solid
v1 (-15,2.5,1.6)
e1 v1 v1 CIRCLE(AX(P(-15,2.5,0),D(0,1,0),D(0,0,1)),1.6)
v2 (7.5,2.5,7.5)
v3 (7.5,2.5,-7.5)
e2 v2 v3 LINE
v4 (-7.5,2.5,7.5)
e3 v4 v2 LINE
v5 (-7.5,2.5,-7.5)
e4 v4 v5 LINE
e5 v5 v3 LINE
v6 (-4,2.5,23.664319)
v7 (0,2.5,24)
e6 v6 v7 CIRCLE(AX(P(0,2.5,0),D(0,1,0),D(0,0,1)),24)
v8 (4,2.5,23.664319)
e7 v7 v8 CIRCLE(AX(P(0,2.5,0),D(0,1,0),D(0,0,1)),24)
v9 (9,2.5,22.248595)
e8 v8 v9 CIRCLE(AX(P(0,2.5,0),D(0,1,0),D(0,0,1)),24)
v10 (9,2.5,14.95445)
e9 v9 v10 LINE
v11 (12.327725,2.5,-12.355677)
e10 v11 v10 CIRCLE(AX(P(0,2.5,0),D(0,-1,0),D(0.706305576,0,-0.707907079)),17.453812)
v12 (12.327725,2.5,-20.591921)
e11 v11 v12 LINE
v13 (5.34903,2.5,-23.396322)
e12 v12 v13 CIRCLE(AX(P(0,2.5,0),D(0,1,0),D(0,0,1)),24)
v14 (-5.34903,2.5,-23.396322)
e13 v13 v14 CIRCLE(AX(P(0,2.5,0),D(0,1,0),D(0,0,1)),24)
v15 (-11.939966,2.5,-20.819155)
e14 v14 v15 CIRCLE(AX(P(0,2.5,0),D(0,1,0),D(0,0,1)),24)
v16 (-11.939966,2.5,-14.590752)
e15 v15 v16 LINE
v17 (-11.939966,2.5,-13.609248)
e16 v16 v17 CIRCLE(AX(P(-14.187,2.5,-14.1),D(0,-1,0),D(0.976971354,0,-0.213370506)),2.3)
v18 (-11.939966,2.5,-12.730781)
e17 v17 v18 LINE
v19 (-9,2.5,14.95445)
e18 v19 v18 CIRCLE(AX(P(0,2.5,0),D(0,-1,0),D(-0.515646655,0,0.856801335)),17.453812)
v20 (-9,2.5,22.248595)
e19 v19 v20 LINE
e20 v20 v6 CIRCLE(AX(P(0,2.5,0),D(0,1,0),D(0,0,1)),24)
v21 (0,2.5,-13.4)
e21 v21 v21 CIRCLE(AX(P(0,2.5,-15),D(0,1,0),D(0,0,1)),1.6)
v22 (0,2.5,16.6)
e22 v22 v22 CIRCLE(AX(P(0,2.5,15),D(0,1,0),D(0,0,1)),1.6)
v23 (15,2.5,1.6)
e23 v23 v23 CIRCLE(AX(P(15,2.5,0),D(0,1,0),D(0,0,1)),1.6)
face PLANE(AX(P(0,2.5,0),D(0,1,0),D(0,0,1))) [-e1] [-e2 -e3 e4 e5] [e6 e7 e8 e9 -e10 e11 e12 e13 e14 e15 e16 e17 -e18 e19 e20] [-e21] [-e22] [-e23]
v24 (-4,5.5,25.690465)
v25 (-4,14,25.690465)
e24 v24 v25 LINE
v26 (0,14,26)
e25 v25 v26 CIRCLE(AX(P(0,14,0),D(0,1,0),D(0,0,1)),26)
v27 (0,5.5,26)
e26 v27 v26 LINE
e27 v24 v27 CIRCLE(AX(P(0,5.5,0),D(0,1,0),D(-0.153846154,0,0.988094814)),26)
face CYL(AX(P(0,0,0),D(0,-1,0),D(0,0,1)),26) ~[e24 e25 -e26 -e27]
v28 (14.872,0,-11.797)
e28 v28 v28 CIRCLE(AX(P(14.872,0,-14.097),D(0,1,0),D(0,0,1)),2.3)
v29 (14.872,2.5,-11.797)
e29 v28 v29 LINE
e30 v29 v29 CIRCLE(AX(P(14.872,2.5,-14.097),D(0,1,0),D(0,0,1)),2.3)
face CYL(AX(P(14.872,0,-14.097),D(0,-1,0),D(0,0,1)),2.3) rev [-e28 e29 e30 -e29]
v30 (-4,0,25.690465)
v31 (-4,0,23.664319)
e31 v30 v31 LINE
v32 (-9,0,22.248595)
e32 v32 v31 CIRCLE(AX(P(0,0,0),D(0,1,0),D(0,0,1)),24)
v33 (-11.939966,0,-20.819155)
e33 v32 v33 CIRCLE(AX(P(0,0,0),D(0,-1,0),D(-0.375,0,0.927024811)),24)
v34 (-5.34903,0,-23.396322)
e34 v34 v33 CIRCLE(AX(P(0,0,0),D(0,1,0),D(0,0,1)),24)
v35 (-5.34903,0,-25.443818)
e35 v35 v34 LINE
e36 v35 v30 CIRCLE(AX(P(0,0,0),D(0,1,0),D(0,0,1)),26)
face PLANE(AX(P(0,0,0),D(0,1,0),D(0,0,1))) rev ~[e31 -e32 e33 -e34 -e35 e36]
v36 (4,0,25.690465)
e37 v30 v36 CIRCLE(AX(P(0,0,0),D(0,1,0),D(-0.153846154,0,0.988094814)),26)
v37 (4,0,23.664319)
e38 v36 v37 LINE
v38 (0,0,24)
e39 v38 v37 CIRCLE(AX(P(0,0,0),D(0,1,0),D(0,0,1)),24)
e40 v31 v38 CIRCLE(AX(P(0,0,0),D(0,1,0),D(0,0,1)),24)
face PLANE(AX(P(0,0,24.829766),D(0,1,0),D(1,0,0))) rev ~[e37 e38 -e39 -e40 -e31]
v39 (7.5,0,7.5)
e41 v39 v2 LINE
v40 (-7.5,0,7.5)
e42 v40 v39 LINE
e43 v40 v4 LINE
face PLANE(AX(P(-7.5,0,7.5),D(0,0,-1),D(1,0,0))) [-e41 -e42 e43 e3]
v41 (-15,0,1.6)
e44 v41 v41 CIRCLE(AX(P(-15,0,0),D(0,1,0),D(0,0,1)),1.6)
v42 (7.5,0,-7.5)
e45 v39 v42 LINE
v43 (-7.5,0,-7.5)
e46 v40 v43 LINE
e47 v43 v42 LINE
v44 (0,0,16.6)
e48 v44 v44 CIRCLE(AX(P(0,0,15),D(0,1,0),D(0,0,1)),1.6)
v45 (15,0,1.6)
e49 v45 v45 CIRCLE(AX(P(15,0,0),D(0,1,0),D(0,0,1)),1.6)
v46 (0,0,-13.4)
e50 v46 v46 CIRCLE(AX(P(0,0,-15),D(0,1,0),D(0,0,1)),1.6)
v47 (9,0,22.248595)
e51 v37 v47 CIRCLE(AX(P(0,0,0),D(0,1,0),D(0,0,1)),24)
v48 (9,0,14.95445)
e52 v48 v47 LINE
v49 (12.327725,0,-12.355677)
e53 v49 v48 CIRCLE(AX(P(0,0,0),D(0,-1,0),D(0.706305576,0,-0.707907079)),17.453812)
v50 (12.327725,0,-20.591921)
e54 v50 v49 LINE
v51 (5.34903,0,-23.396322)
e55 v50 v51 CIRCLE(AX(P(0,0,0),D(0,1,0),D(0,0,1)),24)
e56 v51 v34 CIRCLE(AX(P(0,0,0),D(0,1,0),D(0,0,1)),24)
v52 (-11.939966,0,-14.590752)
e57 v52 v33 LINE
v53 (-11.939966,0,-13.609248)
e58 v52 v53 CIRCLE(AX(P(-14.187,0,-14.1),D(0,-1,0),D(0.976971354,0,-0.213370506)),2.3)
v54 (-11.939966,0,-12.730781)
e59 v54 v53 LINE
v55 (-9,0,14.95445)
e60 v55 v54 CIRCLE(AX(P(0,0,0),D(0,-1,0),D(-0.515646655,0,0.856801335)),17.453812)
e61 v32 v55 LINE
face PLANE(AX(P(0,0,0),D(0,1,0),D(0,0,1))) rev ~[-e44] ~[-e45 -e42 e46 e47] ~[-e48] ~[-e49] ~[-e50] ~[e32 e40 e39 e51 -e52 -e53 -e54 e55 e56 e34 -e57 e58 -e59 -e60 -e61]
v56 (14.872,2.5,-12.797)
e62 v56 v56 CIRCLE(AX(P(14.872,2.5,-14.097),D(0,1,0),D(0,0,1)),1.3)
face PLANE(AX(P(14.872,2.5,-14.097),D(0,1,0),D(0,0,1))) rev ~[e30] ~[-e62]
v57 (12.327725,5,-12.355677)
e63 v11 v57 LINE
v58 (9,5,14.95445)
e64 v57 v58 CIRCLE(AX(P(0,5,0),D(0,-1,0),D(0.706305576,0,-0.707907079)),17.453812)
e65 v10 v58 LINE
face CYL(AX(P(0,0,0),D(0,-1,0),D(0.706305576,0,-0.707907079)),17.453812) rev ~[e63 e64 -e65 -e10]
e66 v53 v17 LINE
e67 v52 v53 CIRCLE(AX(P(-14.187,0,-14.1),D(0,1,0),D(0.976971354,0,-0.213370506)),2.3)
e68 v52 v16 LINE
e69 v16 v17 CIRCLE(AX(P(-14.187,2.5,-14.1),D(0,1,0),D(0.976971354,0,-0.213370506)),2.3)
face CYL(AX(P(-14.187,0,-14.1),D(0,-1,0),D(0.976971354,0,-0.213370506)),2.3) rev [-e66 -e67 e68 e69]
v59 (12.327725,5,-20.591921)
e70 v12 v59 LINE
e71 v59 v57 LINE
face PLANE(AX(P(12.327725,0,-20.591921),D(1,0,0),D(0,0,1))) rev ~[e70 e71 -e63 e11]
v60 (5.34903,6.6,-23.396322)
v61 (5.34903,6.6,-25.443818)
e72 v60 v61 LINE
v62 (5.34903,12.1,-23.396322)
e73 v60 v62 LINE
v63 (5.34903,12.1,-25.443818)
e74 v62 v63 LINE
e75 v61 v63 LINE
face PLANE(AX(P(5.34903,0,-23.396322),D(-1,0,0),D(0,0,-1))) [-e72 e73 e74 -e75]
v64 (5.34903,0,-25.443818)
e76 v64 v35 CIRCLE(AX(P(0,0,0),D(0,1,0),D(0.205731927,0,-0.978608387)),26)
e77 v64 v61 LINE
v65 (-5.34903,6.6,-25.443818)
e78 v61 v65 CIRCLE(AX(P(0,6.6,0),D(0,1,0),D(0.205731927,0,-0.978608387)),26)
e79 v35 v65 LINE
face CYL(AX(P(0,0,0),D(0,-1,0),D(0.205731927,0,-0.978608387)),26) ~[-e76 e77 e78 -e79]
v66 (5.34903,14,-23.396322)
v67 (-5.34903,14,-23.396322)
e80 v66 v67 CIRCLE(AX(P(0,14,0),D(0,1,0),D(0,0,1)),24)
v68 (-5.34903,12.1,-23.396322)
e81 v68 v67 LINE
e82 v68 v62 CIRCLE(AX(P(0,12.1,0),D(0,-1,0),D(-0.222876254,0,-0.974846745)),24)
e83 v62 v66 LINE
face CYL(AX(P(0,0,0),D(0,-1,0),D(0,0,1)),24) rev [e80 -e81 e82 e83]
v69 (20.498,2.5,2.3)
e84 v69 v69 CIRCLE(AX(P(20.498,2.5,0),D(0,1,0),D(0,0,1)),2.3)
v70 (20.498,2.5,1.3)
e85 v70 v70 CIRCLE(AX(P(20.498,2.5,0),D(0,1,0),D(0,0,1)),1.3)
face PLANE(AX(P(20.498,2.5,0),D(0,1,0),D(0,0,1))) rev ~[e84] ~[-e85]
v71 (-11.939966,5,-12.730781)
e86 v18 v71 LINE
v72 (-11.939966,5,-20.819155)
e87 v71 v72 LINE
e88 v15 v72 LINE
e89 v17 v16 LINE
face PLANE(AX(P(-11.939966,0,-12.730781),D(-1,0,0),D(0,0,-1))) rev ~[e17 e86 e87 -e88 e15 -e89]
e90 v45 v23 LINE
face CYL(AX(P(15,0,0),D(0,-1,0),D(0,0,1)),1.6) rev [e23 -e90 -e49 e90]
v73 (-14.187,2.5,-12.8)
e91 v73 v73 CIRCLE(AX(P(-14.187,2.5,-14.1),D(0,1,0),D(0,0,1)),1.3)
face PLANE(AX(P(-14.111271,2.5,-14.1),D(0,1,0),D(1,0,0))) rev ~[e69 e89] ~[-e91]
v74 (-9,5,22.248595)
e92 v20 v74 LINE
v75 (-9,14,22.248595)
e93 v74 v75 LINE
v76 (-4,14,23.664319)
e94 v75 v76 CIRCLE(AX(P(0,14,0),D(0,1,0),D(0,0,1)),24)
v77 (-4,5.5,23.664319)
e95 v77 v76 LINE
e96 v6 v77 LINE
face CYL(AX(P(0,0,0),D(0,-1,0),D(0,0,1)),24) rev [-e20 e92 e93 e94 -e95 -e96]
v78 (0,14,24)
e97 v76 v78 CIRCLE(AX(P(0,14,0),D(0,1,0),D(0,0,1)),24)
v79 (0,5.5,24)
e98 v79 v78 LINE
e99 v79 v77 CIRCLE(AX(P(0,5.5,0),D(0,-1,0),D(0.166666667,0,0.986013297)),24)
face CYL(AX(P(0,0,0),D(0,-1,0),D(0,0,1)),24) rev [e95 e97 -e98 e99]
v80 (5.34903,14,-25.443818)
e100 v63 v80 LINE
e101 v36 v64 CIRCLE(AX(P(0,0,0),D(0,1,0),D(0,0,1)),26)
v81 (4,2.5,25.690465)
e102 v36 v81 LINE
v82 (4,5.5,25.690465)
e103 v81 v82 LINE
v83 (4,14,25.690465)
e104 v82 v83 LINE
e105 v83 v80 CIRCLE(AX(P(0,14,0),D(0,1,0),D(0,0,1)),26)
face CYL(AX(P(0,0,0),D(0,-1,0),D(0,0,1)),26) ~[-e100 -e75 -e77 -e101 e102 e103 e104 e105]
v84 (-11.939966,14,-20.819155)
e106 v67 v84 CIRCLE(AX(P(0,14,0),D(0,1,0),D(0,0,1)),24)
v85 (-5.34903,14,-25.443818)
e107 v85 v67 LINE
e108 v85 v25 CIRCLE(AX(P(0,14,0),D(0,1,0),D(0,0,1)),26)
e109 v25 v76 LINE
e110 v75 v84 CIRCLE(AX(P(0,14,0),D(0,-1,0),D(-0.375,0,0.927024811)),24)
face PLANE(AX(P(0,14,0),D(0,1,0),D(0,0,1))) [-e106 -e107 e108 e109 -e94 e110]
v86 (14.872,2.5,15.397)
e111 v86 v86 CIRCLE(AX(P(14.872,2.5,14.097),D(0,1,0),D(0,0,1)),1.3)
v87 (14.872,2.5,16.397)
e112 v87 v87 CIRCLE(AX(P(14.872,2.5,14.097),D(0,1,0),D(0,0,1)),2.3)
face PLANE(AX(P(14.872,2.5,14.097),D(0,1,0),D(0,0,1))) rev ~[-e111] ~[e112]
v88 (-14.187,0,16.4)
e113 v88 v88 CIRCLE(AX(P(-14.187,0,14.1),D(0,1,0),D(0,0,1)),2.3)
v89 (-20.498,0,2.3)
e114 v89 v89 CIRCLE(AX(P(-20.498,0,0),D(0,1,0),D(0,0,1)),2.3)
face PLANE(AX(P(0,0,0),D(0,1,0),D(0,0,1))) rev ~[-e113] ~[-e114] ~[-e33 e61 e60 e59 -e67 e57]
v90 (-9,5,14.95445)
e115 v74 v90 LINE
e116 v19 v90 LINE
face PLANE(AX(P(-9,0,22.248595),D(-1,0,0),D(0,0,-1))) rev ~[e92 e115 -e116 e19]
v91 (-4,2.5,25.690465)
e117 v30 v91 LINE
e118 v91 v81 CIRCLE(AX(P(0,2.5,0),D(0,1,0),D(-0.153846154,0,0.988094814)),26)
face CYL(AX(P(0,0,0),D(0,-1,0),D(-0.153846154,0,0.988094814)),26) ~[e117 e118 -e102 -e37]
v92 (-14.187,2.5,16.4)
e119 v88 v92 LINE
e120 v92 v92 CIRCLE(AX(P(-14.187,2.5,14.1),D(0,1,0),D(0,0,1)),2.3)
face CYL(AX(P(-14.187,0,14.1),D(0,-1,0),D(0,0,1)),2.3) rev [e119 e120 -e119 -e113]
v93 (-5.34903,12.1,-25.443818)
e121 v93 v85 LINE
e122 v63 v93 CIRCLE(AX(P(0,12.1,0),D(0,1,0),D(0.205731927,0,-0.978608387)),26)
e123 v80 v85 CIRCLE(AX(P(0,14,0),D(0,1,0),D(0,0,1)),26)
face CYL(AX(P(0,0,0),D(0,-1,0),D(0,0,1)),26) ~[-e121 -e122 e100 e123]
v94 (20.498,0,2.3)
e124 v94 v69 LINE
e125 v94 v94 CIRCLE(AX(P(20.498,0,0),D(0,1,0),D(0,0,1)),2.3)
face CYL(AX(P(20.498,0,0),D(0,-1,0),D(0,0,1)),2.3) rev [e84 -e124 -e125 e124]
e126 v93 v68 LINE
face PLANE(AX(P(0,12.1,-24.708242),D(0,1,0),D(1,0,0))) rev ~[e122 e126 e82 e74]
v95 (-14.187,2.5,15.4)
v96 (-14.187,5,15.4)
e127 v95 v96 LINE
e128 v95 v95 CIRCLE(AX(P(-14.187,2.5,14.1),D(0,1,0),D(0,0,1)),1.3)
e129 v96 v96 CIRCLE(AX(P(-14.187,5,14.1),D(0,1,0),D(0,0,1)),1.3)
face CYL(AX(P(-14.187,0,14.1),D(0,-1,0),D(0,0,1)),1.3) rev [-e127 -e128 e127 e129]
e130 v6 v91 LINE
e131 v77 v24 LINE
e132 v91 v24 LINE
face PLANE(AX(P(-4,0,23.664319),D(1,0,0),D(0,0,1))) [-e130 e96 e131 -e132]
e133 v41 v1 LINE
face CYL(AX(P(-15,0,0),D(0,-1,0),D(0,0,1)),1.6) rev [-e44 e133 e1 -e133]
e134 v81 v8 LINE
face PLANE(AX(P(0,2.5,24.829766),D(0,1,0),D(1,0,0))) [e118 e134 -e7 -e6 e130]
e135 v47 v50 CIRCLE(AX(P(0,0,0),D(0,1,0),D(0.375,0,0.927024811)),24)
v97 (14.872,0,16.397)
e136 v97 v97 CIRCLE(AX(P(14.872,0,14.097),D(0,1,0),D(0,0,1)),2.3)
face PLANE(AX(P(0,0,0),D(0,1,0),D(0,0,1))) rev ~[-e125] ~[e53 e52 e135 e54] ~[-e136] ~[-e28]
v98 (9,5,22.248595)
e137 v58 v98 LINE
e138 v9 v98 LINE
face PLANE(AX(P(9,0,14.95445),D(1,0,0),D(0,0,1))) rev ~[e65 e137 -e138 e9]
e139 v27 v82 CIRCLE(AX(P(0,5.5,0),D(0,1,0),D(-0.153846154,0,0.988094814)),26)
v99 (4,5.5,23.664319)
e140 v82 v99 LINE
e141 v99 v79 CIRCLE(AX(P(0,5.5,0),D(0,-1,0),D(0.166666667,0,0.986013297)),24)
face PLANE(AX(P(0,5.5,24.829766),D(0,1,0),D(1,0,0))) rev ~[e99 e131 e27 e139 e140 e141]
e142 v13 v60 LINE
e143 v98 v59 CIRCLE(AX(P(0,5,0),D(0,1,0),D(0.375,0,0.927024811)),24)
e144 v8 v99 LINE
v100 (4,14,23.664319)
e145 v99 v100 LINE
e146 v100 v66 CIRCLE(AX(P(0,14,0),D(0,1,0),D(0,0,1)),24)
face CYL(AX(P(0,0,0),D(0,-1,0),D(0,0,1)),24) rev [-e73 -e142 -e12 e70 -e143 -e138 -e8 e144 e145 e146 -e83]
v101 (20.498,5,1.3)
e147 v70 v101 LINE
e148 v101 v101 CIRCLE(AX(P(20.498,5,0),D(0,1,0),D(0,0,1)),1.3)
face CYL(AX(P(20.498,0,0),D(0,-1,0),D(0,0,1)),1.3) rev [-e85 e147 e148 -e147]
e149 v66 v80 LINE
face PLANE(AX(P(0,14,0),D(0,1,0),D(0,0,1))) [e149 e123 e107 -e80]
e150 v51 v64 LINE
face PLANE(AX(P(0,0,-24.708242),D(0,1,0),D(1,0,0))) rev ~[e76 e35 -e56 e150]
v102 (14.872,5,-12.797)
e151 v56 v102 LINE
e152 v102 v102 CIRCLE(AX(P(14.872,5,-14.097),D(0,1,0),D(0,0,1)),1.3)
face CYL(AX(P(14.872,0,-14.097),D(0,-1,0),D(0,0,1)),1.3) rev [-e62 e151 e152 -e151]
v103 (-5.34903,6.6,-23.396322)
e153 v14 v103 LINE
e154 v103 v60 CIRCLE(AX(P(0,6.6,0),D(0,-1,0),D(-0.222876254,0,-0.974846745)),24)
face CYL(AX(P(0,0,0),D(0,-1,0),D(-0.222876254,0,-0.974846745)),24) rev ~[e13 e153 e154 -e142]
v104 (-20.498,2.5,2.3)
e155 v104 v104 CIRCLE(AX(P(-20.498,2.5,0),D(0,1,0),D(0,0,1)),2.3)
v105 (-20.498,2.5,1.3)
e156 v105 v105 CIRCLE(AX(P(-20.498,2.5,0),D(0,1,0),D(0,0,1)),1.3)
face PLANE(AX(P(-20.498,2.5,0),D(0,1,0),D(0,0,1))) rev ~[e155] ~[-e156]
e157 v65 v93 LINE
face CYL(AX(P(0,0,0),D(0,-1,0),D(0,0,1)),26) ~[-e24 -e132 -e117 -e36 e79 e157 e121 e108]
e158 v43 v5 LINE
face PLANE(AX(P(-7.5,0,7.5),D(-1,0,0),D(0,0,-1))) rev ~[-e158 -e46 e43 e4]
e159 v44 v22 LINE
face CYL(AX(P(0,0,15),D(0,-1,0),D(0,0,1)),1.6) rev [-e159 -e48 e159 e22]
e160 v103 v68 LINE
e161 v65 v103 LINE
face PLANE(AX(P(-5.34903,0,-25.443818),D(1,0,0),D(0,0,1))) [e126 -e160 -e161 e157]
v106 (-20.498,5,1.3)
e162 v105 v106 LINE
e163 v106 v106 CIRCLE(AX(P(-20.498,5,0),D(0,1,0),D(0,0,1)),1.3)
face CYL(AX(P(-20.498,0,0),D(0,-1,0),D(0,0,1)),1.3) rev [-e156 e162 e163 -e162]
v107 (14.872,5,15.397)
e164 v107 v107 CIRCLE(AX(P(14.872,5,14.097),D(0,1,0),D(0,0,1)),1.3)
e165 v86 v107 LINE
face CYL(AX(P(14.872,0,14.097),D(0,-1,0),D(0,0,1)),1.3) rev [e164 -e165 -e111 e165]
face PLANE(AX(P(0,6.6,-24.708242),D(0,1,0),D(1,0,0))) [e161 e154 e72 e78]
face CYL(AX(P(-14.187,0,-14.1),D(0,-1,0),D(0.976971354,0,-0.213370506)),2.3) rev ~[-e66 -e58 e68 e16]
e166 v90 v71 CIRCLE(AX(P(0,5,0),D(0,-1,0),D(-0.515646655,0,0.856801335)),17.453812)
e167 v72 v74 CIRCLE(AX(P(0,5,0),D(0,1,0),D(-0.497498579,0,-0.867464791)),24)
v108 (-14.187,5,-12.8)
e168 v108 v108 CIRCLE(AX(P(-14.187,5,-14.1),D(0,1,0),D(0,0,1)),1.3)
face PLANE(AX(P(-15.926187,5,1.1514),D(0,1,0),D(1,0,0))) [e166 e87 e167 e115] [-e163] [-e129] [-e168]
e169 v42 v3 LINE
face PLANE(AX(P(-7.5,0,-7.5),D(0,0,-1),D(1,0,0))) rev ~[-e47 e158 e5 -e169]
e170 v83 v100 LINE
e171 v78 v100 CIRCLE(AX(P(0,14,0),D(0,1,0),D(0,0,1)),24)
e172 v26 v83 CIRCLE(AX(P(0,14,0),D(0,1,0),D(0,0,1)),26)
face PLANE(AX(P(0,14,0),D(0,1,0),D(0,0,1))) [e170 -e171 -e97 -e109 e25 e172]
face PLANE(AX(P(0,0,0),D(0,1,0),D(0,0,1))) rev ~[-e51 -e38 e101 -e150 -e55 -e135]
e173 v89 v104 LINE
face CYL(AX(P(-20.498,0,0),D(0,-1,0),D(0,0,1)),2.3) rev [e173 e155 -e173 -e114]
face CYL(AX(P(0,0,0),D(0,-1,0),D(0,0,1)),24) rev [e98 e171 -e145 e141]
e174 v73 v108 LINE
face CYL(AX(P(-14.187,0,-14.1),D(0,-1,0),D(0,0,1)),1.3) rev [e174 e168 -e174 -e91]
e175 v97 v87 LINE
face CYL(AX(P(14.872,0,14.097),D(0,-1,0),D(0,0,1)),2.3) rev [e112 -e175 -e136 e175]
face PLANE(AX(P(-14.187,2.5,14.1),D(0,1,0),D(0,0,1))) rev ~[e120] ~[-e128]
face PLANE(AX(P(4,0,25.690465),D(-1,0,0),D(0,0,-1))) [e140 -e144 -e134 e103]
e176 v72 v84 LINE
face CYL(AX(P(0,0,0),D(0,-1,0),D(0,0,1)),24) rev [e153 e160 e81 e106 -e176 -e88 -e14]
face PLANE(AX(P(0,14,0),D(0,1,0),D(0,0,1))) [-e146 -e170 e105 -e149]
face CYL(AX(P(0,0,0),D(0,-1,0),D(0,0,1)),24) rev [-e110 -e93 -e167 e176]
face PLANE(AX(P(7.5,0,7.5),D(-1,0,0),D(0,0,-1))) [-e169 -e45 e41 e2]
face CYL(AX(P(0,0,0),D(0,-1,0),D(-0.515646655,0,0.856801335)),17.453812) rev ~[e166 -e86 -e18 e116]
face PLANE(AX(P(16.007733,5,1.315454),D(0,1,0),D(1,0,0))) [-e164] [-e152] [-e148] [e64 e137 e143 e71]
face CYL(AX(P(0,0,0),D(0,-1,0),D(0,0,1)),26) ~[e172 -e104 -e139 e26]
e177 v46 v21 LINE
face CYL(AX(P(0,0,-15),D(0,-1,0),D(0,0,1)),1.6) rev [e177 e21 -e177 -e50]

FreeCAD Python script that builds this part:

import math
import FreeCAD as App
import Part
import Sketcher
Q = App.Units.Quantity

doc = App.newDocument("Part")
body = doc.addObject("PartDesign::Body", "Body")

# Sketch on XZ plane
sketch1 = body.newObject("Sketcher::SketchObject", "Sketch")
sketch1.AttachmentSupport = (doc.getObject("XZ_Plane"), [""])
sketch1.MapMode = "FlatFace"
sketch1.addGeometry(Part.Circle(App.Vector(0, 0, 0), App.Vector(0, 0, 1), 24), False)
sketch1.addGeometry(Part.Circle(App.Vector(-14.2, -14.1, 0), App.Vector(0, 0, 1), 1.3), False)
sketch1.addGeometry(Part.LineSegment(App.Vector(-11.9, -13.6, 0), App.Vector(-11.9, -14.6, 0)), False)
sketch1.addGeometry(Part.ArcOfCircle(Part.Circle(App.Vector(-14.2, -14.1, 0), App.Vector(0, 0, 1), 2.3), math.radians(-12), math.radians(12)), False)
sketch1.addGeometry(Part.Circle(App.Vector(0, -15, 0), App.Vector(0, 0, 1), 1.6), False)
sketch1.addGeometry(Part.Circle(App.Vector(-20.5, 0, 0), App.Vector(0, 0, 1), 1.3), False)
sketch1.addGeometry(Part.Circle(App.Vector(-15, 0, 0), App.Vector(0, 0, 1), 1.6), False)
sketch1.addGeometry(Part.Circle(App.Vector(-14.2, 14.1, 0), App.Vector(0, 0, 1), 1.3), False)
sketch1.addGeometry(Part.LineSegment(App.Vector(7.5, 7.5, 0), App.Vector(-7.5, 7.5, 0)), False)
sketch1.addGeometry(Part.LineSegment(App.Vector(-7.5, 7.5, 0), App.Vector(-7.5, -7.5, 0)), False)
sketch1.addGeometry(Part.LineSegment(App.Vector(-7.5, -7.5, 0), App.Vector(7.5, -7.5, 0)), False)
sketch1.addGeometry(Part.LineSegment(App.Vector(7.5, -7.5, 0), App.Vector(7.5, 7.5, 0)), False)
sketch1.addGeometry(Part.Circle(App.Vector(14.9, -14.1, 0), App.Vector(0, 0, 1), 1.3), False)
sketch1.addGeometry(Part.Circle(App.Vector(15, 0, 0), App.Vector(0, 0, 1), 1.6), False)
sketch1.addGeometry(Part.Circle(App.Vector(20.5, 0, 0), App.Vector(0, 0, 1), 1.3), False)
sketch1.addGeometry(Part.Circle(App.Vector(0, 15, 0), App.Vector(0, 0, 1), 1.6), False)
sketch1.addGeometry(Part.Circle(App.Vector(14.9, 14.1, 0), App.Vector(0, 0, 1), 1.3), False)
sketch1.addConstraint(Sketcher.Constraint("Coincident", 2, 1, 3, 2))
sketch1.addConstraint(Sketcher.Constraint("Coincident", 3, 1, 2, 2))
sketch1.addConstraint(Sketcher.Constraint("Coincident", 8, 2, 9, 1))
sketch1.addConstraint(Sketcher.Constraint("Coincident", 9, 2, 10, 1))
sketch1.addConstraint(Sketcher.Constraint("Coincident", 10, 2, 11, 1))
sketch1.addConstraint(Sketcher.Constraint("Coincident", 11, 2, 8, 1))
sketch1.addConstraint(Sketcher.Constraint("Vertical", 2))
sketch1.addConstraint(Sketcher.Constraint("Horizontal", 8))
sketch1.addConstraint(Sketcher.Constraint("Vertical", 9))
sketch1.addConstraint(Sketcher.Constraint("Horizontal", 10))
sketch1.addConstraint(Sketcher.Constraint("Vertical", 11))
sketch1.addConstraint(Sketcher.Constraint("Coincident", 0, 3, -1, 1))
sketch1.addConstraint(Sketcher.Constraint("Coincident", 3, 3, 1, 3))
sketch1.addConstraint(Sketcher.Constraint("Equal", 1, 5))
sketch1.addConstraint(Sketcher.Constraint("Equal", 4, 6))
sketch1.addConstraint(Sketcher.Constraint("Equal", 5, 7))
sketch1.addConstraint(Sketcher.Constraint("Equal", 7, 12))
sketch1.addConstraint(Sketcher.Constraint("Equal", 6, 13))
sketch1.addConstraint(Sketcher.Constraint("Equal", 12, 14))
sketch1.addConstraint(Sketcher.Constraint("Equal", 13, 15))
sketch1.addConstraint(Sketcher.Constraint("Equal", 14, 16))
sketch1.addConstraint(Sketcher.Constraint("Symmetric", 6, 3, 13, 3, -1, 1))
sketch1.addConstraint(Sketcher.Constraint("Symmetric", 5, 3, 14, 3, -1, 1))
sketch1.addConstraint(Sketcher.Constraint("Symmetric", 4, 3, 15, 3, -1, 1))
sketch1.addConstraint(Sketcher.Constraint("Symmetric", 8, 2, 10, 2, -1, 1))
sketch1.addConstraint(Sketcher.Constraint("Symmetric", 1, 3, 7, 3, -1))
sketch1.addConstraint(Sketcher.Constraint("Symmetric", 12, 3, 16, 3, -1))
sketch1.addConstraint(Sketcher.Constraint("PointOnObject", 4, 3, -2))
sketch1.addConstraint(Sketcher.Constraint("PointOnObject", 5, 3, -1))
sketch1.addConstraint(Sketcher.Constraint("PointOnObject", 6, 3, -1))
sketch1.addConstraint(Sketcher.Constraint("Equal", 10, 9))
sketch1.addConstraint(Sketcher.Constraint("Diameter", 0, Q("48 mm")))
sketch1.addConstraint(Sketcher.Constraint("Diameter", 1, Q("2.6 mm")))
sketch1.addConstraint(Sketcher.Constraint("Diameter", 4, Q("3.2 mm")))
sketch1.addConstraint(Sketcher.Constraint("Radius", 3, Q("2.3 mm")))
sketch1.addConstraint(Sketcher.Constraint("DistanceX", 8, 2, 8, 1, Q("15 mm")))
sketch1.addConstraint(Sketcher.Constraint("DistanceY", 4, 3, -1, 1, Q("15 mm")))
sketch1.addConstraint(Sketcher.Constraint("DistanceX", 6, 3, -1, 1, Q("15 mm")))
sketch1.addConstraint(Sketcher.Constraint("DistanceY", 1, 3, -1, 1, Q("14.1 mm")))
sketch1.addConstraint(Sketcher.Constraint("DistanceX", 1, 3, -1, 1, Q("14.187 mm")))
sketch1.addConstraint(Sketcher.Constraint("DistanceX", 5, 3, -1, 1, Q("20.498 mm")))
sketch1.addConstraint(Sketcher.Constraint("DistanceX", -1, 1, 12, 3, Q("14.872 mm")))
sketch1.addConstraint(Sketcher.Constraint("DistanceY", 12, 3, -1, 1, Q("14.097 mm")))
sketch1.addConstraint(Sketcher.Constraint("DistanceY", 2, 2, 2, 1, Q("0.981504 mm")))
pad1 = body.newObject("PartDesign::Pad", "Pad")
pad1.Profile = sketch1
pad1.Length = 2.5
pad1.Reversed = True

# Sketch on XZ plane
sketch2 = body.newObject("Sketcher::SketchObject", "Sketch001")
sketch2.AttachmentSupport = (doc.getObject("XZ_Plane"), [""])
sketch2.MapMode = "FlatFace"
sketch2.addGeometry(Part.Circle(App.Vector(0, 0, 0), App.Vector(0, 0, 1), 26), False)
sketch2.addGeometry(Part.ArcOfCircle(Part.Circle(App.Vector(0, 0, 0), App.Vector(0, 0, 1), 24), math.radians(112), math.radians(240)), False)
sketch2.addGeometry(Part.ArcOfCircle(Part.Circle(App.Vector(0, 0, 0), App.Vector(0, 0, 1), 24), math.radians(-120), math.radians(112)), False)
sketch2.addConstraint(Sketcher.Constraint("Tangent", 1, 1, 2, 2))
sketch2.addConstraint(Sketcher.Constraint("Coincident", 2, 1, 1, 2))
sketch2.addConstraint(Sketcher.Constraint("Coincident", 0, 3, -1, 1))
sketch2.addConstraint(Sketcher.Constraint("Coincident", 1, 3, -1, 1))
sketch2.addConstraint(Sketcher.Constraint("Diameter", 0, Q("52 mm")))
sketch2.addConstraint(Sketcher.Constraint("Radius", 1, Q("24 mm")))
sketch2.addConstraint(Sketcher.Constraint("DistanceX", 1, 1, -1, 1, Q("9 mm")))
sketch2.addConstraint(Sketcher.Constraint("DistanceY", 2, 1, 1, 1, Q("43.06775 mm")))
pad2 = body.newObject("PartDesign::Pad", "Pad001")
pad2.Profile = sketch2
pad2.Length = 14
pad2.Reversed = True

# Sketch on XZ plane
sketch3 = body.newObject("Sketcher::SketchObject", "Sketch002")
sketch3.AttachmentSupport = (doc.getObject("XZ_Plane"), [""])
sketch3.MapMode = "FlatFace"
sketch3.addGeometry(Part.LineSegment(App.Vector(12.3, -20.6, 0), App.Vector(12.3, -12.4, 0)), False)
sketch3.addGeometry(Part.ArcOfCircle(Part.Circle(App.Vector(0, 0, 0), App.Vector(0, 0, 1), 17.5), math.radians(-45), math.radians(59)), False)
sketch3.addGeometry(Part.LineSegment(App.Vector(9, 15, 0), App.Vector(9, 22.2, 0)), False)
sketch3.addGeometry(Part.ArcOfCircle(Part.Circle(App.Vector(0, 0, 0), App.Vector(0, 0, 1), 24), math.radians(-59), math.radians(68)), False)
sketch3.addGeometry(Part.Circle(App.Vector(14.9, 14.1, 0), App.Vector(0, 0, 1), 1.3), False)
sketch3.addGeometry(Part.Circle(App.Vector(14.9, -14.1, 0), App.Vector(0, 0, 1), 1.3), False)
sketch3.addGeometry(Part.Circle(App.Vector(20.5, 0, 0), App.Vector(0, 0, 1), 1.3), False)
sketch3.addGeometry(Part.LineSegment(App.Vector(-9, 22.2, 0), App.Vector(-9, 15, 0)), False)
sketch3.addGeometry(Part.ArcOfCircle(Part.Circle(App.Vector(0, 0, 0), App.Vector(0, 0, 1), 17.5), math.radians(121), math.radians(227)), False)
sketch3.addGeometry(Part.LineSegment(App.Vector(-11.9, -12.7, 0), App.Vector(-11.9, -20.8, 0)), False)
sketch3.addGeometry(Part.ArcOfCircle(Part.Circle(App.Vector(0, 0, 0), App.Vector(0, 0, 1), 24), math.radians(112), math.radians(240)), False)
sketch3.addGeometry(Part.Circle(App.Vector(-20.5, 0, 0), App.Vector(0, 0, 1), 1.3), False)
sketch3.addGeometry(Part.Circle(App.Vector(-14.2, 14.1, 0), App.Vector(0, 0, 1), 1.3), False)
sketch3.addGeometry(Part.Circle(App.Vector(-14.2, -14.1, 0), App.Vector(0, 0, 1), 1.3), False)
sketch3.addConstraint(Sketcher.Constraint("Coincident", 0, 2, 1, 1))
sketch3.addConstraint(Sketcher.Constraint("Coincident", 1, 2, 2, 1))
sketch3.addConstraint(Sketcher.Constraint("Coincident", 2, 2, 3, 2))
sketch3.addConstraint(Sketcher.Constraint("Coincident", 3, 1, 0, 1))
sketch3.addConstraint(Sketcher.Constraint("Coincident", 7, 2, 8, 1))
sketch3.addConstraint(Sketcher.Constraint("Coincident", 8, 2, 9, 1))
sketch3.addConstraint(Sketcher.Constraint("Coincident", 9, 2, 10, 2))
sketch3.addConstraint(Sketcher.Constraint("Coincident", 10, 1, 7, 1))
sketch3.addConstraint(Sketcher.Constraint("Vertical", 0))
sketch3.addConstraint(Sketcher.Constraint("Vertical", 2))
sketch3.addConstraint(Sketcher.Constraint("Vertical", 7))
sketch3.addConstraint(Sketcher.Constraint("Vertical", 9))
sketch3.addConstraint(Sketcher.Constraint("Coincident", 1, 3, -1, 1))
sketch3.addConstraint(Sketcher.Constraint("Coincident", 3, 3, -1, 1))
sketch3.addConstraint(Sketcher.Constraint("Coincident", 8, 3, -1, 1))
sketch3.addConstraint(Sketcher.Constraint("Coincident", 10, 3, -1, 1))
sketch3.addConstraint(Sketcher.Constraint("Equal", 4, 5))
sketch3.addConstraint(Sketcher.Constraint("Equal", 5, 6))
sketch3.addConstraint(Sketcher.Constraint("Equal", 1, 8))
sketch3.addConstraint(Sketcher.Constraint("Equal", 3, 10))
sketch3.addConstraint(Sketcher.Constraint("Equal", 6, 11))
sketch3.addConstraint(Sketcher.Constraint("Equal", 11, 12))
sketch3.addConstraint(Sketcher.Constraint("Equal", 12, 13))
sketch3.addConstraint(Sketcher.Constraint("Symmetric", 6, 3, 11, 3, -1, 1))
sketch3.addConstraint(Sketcher.Constraint("Symmetric", 4, 3, 5, 3, -1))
sketch3.addConstraint(Sketcher.Constraint("Symmetric", 12, 3, 13, 3, -1))
sketch3.addConstraint(Sketcher.Constraint("PointOnObject", 6, 3, -1))
sketch3.addConstraint(Sketcher.Constraint("Horizontal", 1, 2, 7, 2))
sketch3.addConstraint(Sketcher.Constraint("Radius", 3, Q("24 mm")))
sketch3.addConstraint(Sketcher.Constraint("Diameter", 4, Q("2.6 mm")))
sketch3.addConstraint(Sketcher.Constraint("DistanceX", -1, 1, 1, 2, Q("9 mm")))
sketch3.addConstraint(Sketcher.Constraint("DistanceY", -1, 1, 12, 3, Q("14.1 mm")))
sketch3.addConstraint(Sketcher.Constraint("DistanceX", 11, 3, 4, 3, Q("35.37 mm")))
sketch3.addConstraint(Sketcher.Constraint("DistanceX", -1, 1, 4, 3, Q("14.872 mm")))
sketch3.addConstraint(Sketcher.Constraint("DistanceY", -1, 1, 4, 3, Q("14.097 mm")))
sketch3.addConstraint(Sketcher.Constraint("DistanceX", 12, 3, -1, 1, Q("14.187 mm")))
sketch3.addConstraint(Sketcher.Constraint("Radius", 1, Q("17.453812 mm")))
sketch3.addConstraint(Sketcher.Constraint("DistanceY", 0, 1, 0, 2, Q("8.236243 mm")))
sketch3.addConstraint(Sketcher.Constraint("DistanceY", 9, 2, 9, 1, Q("8.088374 mm")))
pad3 = body.newObject("PartDesign::Pad", "Pad002")
pad3.Profile = sketch3
pad3.Length = 5
pad3.Reversed = True

# Sketch on XZ plane
sketch4 = body.newObject("Sketcher::SketchObject", "Sketch003")
sketch4.AttachmentSupport = (doc.getObject("XZ_Plane"), [""])
sketch4.MapMode = "FlatFace"
sketch4.addGeometry(Part.ArcOfCircle(Part.Circle(App.Vector(0, 0, 0), App.Vector(0, 0, 1), 24), math.radians(-103), math.radians(-77)), False)
sketch4.addGeometry(Part.LineSegment(App.Vector(5.3, -23.4, 0), App.Vector(5.3, -25.4, 0)), False)
sketch4.addGeometry(Part.ArcOfCircle(Part.Circle(App.Vector(0, 0, 0), App.Vector(0, 0, 1), 26), math.radians(-102), math.radians(-78)), False)
sketch4.addGeometry(Part.LineSegment(App.Vector(-5.3, -25.4, 0), App.Vector(-5.3, -23.4, 0)), False)
sketch4.addConstraint(Sketcher.Constraint("Coincident", 0, 2, 1, 1))
sketch4.addConstraint(Sketcher.Constraint("Coincident", 1, 2, 2, 2))
sketch4.addConstraint(Sketcher.Constraint("Coincident", 2, 1, 3, 1))
sketch4.addConstraint(Sketcher.Constraint("Coincident", 3, 2, 0, 1))
sketch4.addConstraint(Sketcher.Constraint("Vertical", 1))
sketch4.addConstraint(Sketcher.Constraint("Vertical", 3))
sketch4.addConstraint(Sketcher.Constraint("Coincident", 0, 3, -1, 1))
sketch4.addConstraint(Sketcher.Constraint("Coincident", 2, 3, -1, 1))
sketch4.addConstraint(Sketcher.Constraint("Horizontal", 1, 2, 2, 1))
sketch4.addConstraint(Sketcher.Constraint("Radius", 0, Q("24 mm")))
sketch4.addConstraint(Sketcher.Constraint("Radius", 2, Q("26 mm")))
sketch4.addConstraint(Sketcher.Constraint("DistanceY", 1, 2, 1, 1, Q("2.047496 mm")))
pocket1 = body.newObject("PartDesign::Pocket", "Pocket")
pocket1.Profile = sketch4
pocket1.Length = 12.1

# Sketch on XZ plane
sketch5 = body.newObject("Sketcher::SketchObject", "Sketch004")
sketch5.AttachmentSupport = (doc.getObject("XZ_Plane"), [""])
sketch5.MapMode = "FlatFace"
sketch5.addGeometry(Part.ArcOfCircle(Part.Circle(App.Vector(0, 0, 0), App.Vector(0, 0, 1), 24), math.radians(-103), math.radians(-77)), False)
sketch5.addGeometry(Part.LineSegment(App.Vector(5.3, -23.4, 0), App.Vector(5.3, -25.4, 0)), False)
sketch5.addGeometry(Part.ArcOfCircle(Part.Circle(App.Vector(0, 0, 0), App.Vector(0, 0, 1), 26), math.radians(-102), math.radians(-78)), False)
sketch5.addGeometry(Part.LineSegment(App.Vector(-5.3, -25.4, 0), App.Vector(-5.3, -23.4, 0)), False)
sketch5.addConstraint(Sketcher.Constraint("Coincident", 0, 2, 1, 1))
sketch5.addConstraint(Sketcher.Constraint("Coincident", 1, 2, 2, 2))
sketch5.addConstraint(Sketcher.Constraint("Coincident", 2, 1, 3, 1))
sketch5.addConstraint(Sketcher.Constraint("Coincident", 3, 2, 0, 1))
sketch5.addConstraint(Sketcher.Constraint("Vertical", 1))
sketch5.addConstraint(Sketcher.Constraint("Vertical", 3))
sketch5.addConstraint(Sketcher.Constraint("Coincident", 0, 3, -1, 1))
sketch5.addConstraint(Sketcher.Constraint("Coincident", 2, 3, -1, 1))
sketch5.addConstraint(Sketcher.Constraint("Horizontal", 1, 2, 2, 1))
sketch5.addConstraint(Sketcher.Constraint("Radius", 0, Q("24 mm")))
sketch5.addConstraint(Sketcher.Constraint("Radius", 2, Q("26 mm")))
sketch5.addConstraint(Sketcher.Constraint("DistanceY", 1, 2, 1, 1, Q("2.047496 mm")))
pad4 = body.newObject("PartDesign::Pad", "Pad003")
pad4.Profile = sketch5
pad4.Length = 6.6
pad4.Reversed = True

# Sketch on XZ plane
sketch6 = body.newObject("Sketcher::SketchObject", "Sketch005")
sketch6.AttachmentSupport = (doc.getObject("XZ_Plane"), [""])
sketch6.MapMode = "FlatFace"
sketch6.addGeometry(Part.Circle(App.Vector(14.9, 14.1, 0), App.Vector(0, 0, 1), 2.3), False)
sketch6.addGeometry(Part.Circle(App.Vector(14.9, 14.1, 0), App.Vector(0, 0, 1), 1.3), False)
sketch6.addGeometry(Part.Circle(App.Vector(-14.2, 14.1, 0), App.Vector(0, 0, 1), 2.3), False)
sketch6.addGeometry(Part.Circle(App.Vector(-14.2, 14.1, 0), App.Vector(0, 0, 1), 1.3), False)
sketch6.addGeometry(Part.Circle(App.Vector(-20.5, 0, 0), App.Vector(0, 0, 1), 2.3), False)
sketch6.addGeometry(Part.Circle(App.Vector(-20.5, 0, 0), App.Vector(0, 0, 1), 1.3), False)
sketch6.addGeometry(Part.ArcOfCircle(Part.Circle(App.Vector(-14.2, -14.1, 0), App.Vector(0, 0, 1), 2.3), math.radians(12), math.radians(348)), False)
sketch6.addGeometry(Part.LineSegment(App.Vector(-11.9, -13.6, 0), App.Vector(-11.9, -14.6, 0)), False)
sketch6.addGeometry(Part.Circle(App.Vector(-14.2, -14.1, 0), App.Vector(0, 0, 1), 1.3), False)
sketch6.addGeometry(Part.Circle(App.Vector(14.9, -14.1, 0), App.Vector(0, 0, 1), 2.3), False)
sketch6.addGeometry(Part.Circle(App.Vector(14.9, -14.1, 0), App.Vector(0, 0, 1), 1.3), False)
sketch6.addGeometry(Part.Circle(App.Vector(20.5, 0, 0), App.Vector(0, 0, 1), 2.3), False)
sketch6.addGeometry(Part.Circle(App.Vector(20.5, 0, 0), App.Vector(0, 0, 1), 1.3), False)
sketch6.addConstraint(Sketcher.Constraint("Coincident", 6, 1, 7, 1))
sketch6.addConstraint(Sketcher.Constraint("Coincident", 7, 2, 6, 2))
sketch6.addConstraint(Sketcher.Constraint("Vertical", 7))
sketch6.addConstraint(Sketcher.Constraint("Coincident", 1, 3, 0, 3))
sketch6.addConstraint(Sketcher.Constraint("Coincident", 3, 3, 2, 3))
sketch6.addConstraint(Sketcher.Constraint("Coincident", 5, 3, 4, 3))
sketch6.addConstraint(Sketcher.Constraint("Coincident", 8, 3, 6, 3))
sketch6.addConstraint(Sketcher.Constraint("Coincident", 10, 3, 9, 3))
sketch6.addConstraint(Sketcher.Constraint("Coincident", 12, 3, 11, 3))
sketch6.addConstraint(Sketcher.Constraint("Equal", 0, 2))
sketch6.addConstraint(Sketcher.Constraint("Equal", 1, 3))
sketch6.addConstraint(Sketcher.Constraint("Equal", 2, 4))
sketch6.addConstraint(Sketcher.Constraint("Equal", 3, 5))
sketch6.addConstraint(Sketcher.Constraint("Equal", 4, 6))
sketch6.addConstraint(Sketcher.Constraint("Equal", 5, 8))
sketch6.addConstraint(Sketcher.Constraint("Equal", 6, 9))
sketch6.addConstraint(Sketcher.Constraint("Equal", 8, 10))
sketch6.addConstraint(Sketcher.Constraint("Equal", 9, 11))
sketch6.addConstraint(Sketcher.Constraint("Equal", 10, 12))
sketch6.addConstraint(Sketcher.Constraint("Symmetric", 4, 3, 11, 3, -1, 1))
sketch6.addConstraint(Sketcher.Constraint("Symmetric", 2, 3, 6, 3, -1))
sketch6.addConstraint(Sketcher.Constraint("Symmetric", 0, 3, 9, 3, -1))
sketch6.addConstraint(Sketcher.Constraint("PointOnObject", 4, 3, -1))
sketch6.addConstraint(Sketcher.Constraint("Diameter", 0, Q("4.6 mm")))
sketch6.addConstraint(Sketcher.Constraint("Diameter", 1, Q("2.6 mm")))
sketch6.addConstraint(Sketcher.Constraint("DistanceY", -1, 1, 2, 3, Q("14.1 mm")))
sketch6.addConstraint(Sketcher.Constraint("DistanceX", 4, 3, 0, 3, Q("35.37 mm")))
sketch6.addConstraint(Sketcher.Constraint("DistanceX", -1, 1, 0, 3, Q("14.872 mm")))
sketch6.addConstraint(Sketcher.Constraint("DistanceY", -1, 1, 0, 3, Q("14.097 mm")))
sketch6.addConstraint(Sketcher.Constraint("DistanceX", 2, 3, -1, 1, Q("14.187 mm")))
sketch6.addConstraint(Sketcher.Constraint("DistanceY", 7, 2, 7, 1, Q("0.981504 mm")))
pocket2 = body.newObject("PartDesign::Pocket", "Pocket001")
pocket2.Profile = sketch6
pocket2.Length = 2.5

# Sketch on XZ plane
sketch7 = body.newObject("Sketcher::SketchObject", "Sketch006")
sketch7.AttachmentSupport = (doc.getObject("XZ_Plane"), [""])
sketch7.MapMode = "FlatFace"
sketch7.addGeometry(Part.LineSegment(App.Vector(4, 25.7, 0), App.Vector(4, 23.7, 0)), False)
sketch7.addGeometry(Part.ArcOfCircle(Part.Circle(App.Vector(0, 0, 0), App.Vector(0, 0, 1), 24), math.radians(80.41), math.radians(99.59)), False)
sketch7.addGeometry(Part.LineSegment(App.Vector(-4, 23.7, 0), App.Vector(-4, 25.7, 0)), False)
sketch7.addGeometry(Part.ArcOfCircle(Part.Circle(App.Vector(0, 0, 0), App.Vector(0, 0, 1), 26), math.radians(81.15), math.radians(98.85)), False)
sketch7.addConstraint(Sketcher.Constraint("Coincident", 0, 2, 1, 1))
sketch7.addConstraint(Sketcher.Constraint("Coincident", 1, 2, 2, 1))
sketch7.addConstraint(Sketcher.Constraint("Coincident", 2, 2, 3, 2))
sketch7.addConstraint(Sketcher.Constraint("Coincident", 3, 1, 0, 1))
sketch7.addConstraint(Sketcher.Constraint("Vertical", 0))
sketch7.addConstraint(Sketcher.Constraint("Vertical", 2))
sketch7.addConstraint(Sketcher.Constraint("Coincident", 1, 3, -1, 1))
sketch7.addConstraint(Sketcher.Constraint("Coincident", 3, 3, -1, 1))
sketch7.addConstraint(Sketcher.Constraint("Horizontal", 0, 2, 1, 2))
sketch7.addConstraint(Sketcher.Constraint("Radius", 1, Q("24 mm")))
sketch7.addConstraint(Sketcher.Constraint("Radius", 3, Q("26 mm")))
sketch7.addConstraint(Sketcher.Constraint("DistanceX", -1, 1, 0, 2, Q("4 mm")))
pocket3 = body.newObject("PartDesign::Pocket", "Pocket002")
pocket3.Profile = sketch7
pocket3.Length = 5.5

# Sketch on XZ plane
sketch8 = body.newObject("Sketcher::SketchObject", "Sketch007")
sketch8.AttachmentSupport = (doc.getObject("XZ_Plane"), [""])
sketch8.MapMode = "FlatFace"
sketch8.addGeometry(Part.LineSegment(App.Vector(4, 25.7, 0), App.Vector(4, 23.7, 0)), False)
sketch8.addGeometry(Part.ArcOfCircle(Part.Circle(App.Vector(0, 0, 0), App.Vector(0, 0, 1), 24), math.radians(80.41), math.radians(99.59)), False)
sketch8.addGeometry(Part.LineSegment(App.Vector(-4, 23.7, 0), App.Vector(-4, 25.7, 0)), False)
sketch8.addGeometry(Part.ArcOfCircle(Part.Circle(App.Vector(0, 0, 0), App.Vector(0, 0, 1), 26), math.radians(81.15), math.radians(98.85)), False)
sketch8.addConstraint(Sketcher.Constraint("Coincident", 0, 2, 1, 1))
sketch8.addConstraint(Sketcher.Constraint("Coincident", 1, 2, 2, 1))
sketch8.addConstraint(Sketcher.Constraint("Coincident", 2, 2, 3, 2))
sketch8.addConstraint(Sketcher.Constraint("Coincident", 3, 1, 0, 1))
sketch8.addConstraint(Sketcher.Constraint("Vertical", 0))
sketch8.addConstraint(Sketcher.Constraint("Vertical", 2))
sketch8.addConstraint(Sketcher.Constraint("Coincident", 1, 3, -1, 1))
sketch8.addConstraint(Sketcher.Constraint("Coincident", 3, 3, -1, 1))
sketch8.addConstraint(Sketcher.Constraint("Horizontal", 0, 2, 1, 2))
sketch8.addConstraint(Sketcher.Constraint("Radius", 1, Q("24 mm")))
sketch8.addConstraint(Sketcher.Constraint("Radius", 3, Q("26 mm")))
sketch8.addConstraint(Sketcher.Constraint("DistanceX", -1, 1, 0, 2, Q("4 mm")))
pad5 = body.newObject("PartDesign::Pad", "Pad004")
pad5.Profile = sketch8
pad5.Length = 2.5
pad5.Reversed = True

doc.recompute()
